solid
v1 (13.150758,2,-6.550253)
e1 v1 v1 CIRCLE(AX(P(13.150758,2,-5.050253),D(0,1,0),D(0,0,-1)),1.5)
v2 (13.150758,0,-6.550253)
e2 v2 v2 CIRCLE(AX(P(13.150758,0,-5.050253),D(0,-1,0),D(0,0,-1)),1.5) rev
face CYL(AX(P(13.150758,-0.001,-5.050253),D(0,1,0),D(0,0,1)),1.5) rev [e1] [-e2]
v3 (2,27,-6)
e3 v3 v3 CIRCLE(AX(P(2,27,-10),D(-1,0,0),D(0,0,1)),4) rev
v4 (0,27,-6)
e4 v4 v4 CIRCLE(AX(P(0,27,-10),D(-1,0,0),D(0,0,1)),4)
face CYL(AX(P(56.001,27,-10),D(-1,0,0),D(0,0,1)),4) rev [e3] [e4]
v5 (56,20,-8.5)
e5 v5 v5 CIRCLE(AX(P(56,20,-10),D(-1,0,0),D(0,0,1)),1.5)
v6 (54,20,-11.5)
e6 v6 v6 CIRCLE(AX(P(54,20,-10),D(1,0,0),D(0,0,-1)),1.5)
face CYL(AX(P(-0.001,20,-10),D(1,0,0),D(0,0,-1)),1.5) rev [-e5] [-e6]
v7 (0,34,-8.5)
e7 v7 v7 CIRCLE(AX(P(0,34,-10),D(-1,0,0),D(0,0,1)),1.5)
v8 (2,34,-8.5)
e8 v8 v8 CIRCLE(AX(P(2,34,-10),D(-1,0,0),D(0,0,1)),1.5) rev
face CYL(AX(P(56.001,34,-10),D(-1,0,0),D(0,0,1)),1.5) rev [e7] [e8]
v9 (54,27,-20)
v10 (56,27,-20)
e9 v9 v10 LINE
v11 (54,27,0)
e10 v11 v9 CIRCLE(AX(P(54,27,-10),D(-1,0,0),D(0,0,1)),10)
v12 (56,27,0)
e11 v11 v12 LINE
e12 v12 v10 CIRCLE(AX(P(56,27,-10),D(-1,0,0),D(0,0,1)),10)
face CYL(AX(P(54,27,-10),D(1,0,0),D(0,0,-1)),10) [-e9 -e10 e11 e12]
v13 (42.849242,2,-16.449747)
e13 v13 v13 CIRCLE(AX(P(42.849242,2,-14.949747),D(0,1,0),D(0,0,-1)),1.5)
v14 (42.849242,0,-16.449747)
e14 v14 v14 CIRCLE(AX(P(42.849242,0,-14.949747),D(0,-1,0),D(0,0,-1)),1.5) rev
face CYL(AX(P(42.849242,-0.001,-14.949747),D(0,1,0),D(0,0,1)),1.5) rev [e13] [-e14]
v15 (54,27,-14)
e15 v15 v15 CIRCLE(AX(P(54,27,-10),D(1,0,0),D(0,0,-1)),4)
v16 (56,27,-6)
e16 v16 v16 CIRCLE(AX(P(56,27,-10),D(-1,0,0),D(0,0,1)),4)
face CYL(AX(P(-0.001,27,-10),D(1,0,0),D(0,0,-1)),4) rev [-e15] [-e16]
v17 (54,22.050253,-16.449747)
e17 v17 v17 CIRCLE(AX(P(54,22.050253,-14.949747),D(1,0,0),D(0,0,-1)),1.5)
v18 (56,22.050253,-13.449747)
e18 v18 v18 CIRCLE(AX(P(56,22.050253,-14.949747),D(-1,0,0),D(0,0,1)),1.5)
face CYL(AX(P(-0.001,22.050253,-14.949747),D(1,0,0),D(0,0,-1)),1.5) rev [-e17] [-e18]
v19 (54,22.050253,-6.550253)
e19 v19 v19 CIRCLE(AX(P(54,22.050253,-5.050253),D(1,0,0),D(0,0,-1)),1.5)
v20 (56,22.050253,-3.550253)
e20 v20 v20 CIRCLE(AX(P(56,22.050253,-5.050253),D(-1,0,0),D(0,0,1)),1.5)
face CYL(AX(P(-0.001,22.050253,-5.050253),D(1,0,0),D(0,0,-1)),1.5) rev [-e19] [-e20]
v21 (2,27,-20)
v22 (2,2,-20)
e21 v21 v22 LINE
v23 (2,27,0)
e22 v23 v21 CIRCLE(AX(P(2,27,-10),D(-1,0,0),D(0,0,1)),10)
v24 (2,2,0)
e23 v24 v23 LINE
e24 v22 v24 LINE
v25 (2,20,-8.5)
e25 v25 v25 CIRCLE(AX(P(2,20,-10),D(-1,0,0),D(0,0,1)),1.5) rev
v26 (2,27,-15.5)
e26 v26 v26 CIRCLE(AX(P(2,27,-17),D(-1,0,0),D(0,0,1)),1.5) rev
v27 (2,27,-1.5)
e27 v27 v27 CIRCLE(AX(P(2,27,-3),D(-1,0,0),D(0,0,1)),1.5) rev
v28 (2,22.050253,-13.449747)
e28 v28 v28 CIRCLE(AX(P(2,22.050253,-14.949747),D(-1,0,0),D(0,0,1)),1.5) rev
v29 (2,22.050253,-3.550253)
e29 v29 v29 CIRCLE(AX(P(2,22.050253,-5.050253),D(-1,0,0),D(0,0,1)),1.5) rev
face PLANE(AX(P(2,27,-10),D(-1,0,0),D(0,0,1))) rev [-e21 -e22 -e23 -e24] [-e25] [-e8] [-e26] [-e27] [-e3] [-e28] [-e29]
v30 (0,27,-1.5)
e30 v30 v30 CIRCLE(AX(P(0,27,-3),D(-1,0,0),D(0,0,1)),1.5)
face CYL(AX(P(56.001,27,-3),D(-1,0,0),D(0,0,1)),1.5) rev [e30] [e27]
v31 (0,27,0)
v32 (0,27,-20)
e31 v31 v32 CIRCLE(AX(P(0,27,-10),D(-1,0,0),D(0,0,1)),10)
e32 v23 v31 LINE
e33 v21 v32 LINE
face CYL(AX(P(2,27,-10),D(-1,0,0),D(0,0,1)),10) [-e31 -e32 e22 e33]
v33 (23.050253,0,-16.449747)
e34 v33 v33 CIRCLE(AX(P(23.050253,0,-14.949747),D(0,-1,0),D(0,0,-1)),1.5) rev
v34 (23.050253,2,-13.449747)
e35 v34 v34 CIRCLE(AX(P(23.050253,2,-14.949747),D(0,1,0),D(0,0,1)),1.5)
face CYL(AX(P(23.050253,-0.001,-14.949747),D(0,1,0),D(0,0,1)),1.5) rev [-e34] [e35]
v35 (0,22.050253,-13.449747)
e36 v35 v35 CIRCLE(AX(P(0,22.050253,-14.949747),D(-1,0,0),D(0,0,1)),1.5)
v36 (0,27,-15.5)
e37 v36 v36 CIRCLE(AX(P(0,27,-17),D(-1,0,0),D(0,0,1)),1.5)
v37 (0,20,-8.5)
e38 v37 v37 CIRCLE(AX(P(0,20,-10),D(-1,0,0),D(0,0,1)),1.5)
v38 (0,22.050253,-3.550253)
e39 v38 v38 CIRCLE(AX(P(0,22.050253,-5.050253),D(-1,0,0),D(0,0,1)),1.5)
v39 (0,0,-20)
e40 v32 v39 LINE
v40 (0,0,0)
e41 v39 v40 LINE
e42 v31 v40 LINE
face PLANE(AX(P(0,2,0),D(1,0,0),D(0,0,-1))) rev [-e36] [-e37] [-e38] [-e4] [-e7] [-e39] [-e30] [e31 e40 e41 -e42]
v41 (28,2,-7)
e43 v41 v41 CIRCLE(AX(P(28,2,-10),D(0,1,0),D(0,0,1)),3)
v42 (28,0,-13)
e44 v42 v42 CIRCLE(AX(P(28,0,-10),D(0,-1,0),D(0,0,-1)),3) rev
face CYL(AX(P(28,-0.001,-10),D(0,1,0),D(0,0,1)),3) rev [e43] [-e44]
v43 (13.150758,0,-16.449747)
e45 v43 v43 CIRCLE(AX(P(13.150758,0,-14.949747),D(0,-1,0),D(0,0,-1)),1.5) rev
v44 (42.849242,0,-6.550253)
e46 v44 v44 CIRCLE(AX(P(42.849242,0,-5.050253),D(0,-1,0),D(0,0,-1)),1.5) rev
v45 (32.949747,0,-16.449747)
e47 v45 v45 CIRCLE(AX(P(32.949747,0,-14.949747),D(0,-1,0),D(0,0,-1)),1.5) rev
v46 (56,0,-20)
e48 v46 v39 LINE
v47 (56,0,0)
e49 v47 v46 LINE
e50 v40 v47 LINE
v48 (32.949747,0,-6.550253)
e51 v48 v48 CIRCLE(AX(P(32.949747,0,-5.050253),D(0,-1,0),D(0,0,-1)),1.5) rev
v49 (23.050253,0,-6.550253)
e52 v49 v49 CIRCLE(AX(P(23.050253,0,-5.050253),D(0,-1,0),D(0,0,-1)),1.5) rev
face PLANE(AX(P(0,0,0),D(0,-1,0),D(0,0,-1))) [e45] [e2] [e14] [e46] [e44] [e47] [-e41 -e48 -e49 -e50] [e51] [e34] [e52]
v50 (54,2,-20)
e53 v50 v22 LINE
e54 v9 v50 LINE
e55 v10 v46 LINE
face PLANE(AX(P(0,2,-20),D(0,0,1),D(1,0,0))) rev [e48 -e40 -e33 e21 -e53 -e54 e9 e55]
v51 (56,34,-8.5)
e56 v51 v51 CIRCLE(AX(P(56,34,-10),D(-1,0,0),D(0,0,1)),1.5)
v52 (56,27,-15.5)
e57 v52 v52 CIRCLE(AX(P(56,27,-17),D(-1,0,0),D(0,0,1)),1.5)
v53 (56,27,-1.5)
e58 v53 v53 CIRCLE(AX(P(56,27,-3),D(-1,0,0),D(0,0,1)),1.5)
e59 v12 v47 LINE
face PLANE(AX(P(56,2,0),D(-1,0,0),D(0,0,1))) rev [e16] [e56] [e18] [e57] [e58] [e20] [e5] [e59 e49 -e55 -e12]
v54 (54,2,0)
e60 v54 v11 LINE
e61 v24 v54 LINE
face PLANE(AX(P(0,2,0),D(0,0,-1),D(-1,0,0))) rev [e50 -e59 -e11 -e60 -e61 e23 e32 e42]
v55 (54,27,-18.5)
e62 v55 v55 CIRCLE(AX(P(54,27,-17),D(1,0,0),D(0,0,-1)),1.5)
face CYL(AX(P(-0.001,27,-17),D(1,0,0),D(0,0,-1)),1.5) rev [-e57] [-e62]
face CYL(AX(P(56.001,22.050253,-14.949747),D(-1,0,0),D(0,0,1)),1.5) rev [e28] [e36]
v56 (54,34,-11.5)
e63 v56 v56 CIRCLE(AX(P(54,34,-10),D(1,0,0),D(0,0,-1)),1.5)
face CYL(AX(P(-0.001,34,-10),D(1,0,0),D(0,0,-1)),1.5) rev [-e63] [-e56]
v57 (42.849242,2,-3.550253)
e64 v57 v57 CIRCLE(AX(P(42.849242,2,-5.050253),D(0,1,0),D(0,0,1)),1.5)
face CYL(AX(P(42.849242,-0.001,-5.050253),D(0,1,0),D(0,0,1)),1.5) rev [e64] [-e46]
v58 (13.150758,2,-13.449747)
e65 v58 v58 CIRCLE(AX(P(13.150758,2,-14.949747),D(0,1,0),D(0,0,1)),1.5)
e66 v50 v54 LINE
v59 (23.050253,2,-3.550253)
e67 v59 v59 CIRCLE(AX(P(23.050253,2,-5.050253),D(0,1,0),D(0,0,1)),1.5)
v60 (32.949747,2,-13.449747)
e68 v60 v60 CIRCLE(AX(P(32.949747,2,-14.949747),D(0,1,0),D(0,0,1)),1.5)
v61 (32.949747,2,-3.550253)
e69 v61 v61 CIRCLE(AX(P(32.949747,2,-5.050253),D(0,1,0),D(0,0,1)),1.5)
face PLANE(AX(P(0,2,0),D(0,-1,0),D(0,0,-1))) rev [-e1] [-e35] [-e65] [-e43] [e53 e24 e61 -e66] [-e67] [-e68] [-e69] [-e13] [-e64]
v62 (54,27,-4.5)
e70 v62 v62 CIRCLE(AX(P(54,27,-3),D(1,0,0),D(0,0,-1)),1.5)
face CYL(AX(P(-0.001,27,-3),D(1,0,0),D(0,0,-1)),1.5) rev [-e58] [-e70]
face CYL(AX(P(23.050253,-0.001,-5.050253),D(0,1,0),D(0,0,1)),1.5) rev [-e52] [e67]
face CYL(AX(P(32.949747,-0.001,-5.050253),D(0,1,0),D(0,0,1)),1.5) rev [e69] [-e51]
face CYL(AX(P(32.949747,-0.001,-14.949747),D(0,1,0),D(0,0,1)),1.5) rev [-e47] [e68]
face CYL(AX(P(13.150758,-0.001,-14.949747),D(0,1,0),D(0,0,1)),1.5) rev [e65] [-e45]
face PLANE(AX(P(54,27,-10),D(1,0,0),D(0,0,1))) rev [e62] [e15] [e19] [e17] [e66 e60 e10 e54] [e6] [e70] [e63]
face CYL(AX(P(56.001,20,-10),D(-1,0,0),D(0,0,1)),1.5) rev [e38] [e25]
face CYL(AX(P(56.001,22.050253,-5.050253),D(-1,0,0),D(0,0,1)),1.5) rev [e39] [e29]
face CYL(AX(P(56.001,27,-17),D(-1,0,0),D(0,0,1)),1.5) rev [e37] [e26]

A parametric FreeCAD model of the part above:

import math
import FreeCAD as App
import Part
import Sketcher


def add_polygon(sketch, points):
    """Adds a closed chain of lines whose ends are joined by coincident constraints."""
    first, n = sketch.GeometryCount, len(points)
    for a, b in zip(points, points[1:] + points[:1]):
        sketch.addGeometry(Part.LineSegment(App.Vector(*a, 0), App.Vector(*b, 0)), False)
    for i in range(n):
        sketch.addConstraint(Sketcher.Constraint("Coincident", first + i, 2, first + (i + 1) % n, 1))

doc = App.newDocument("Part")
body = doc.addObject("PartDesign::Body", "Body")

# Sketch on XZ plane
sketch1 = doc.addObject("Sketcher::SketchObject", "Sketch")
body.addObject(sketch1)
sketch1.AttachmentSupport = (doc.XZ_Plane, [""])
sketch1.MapMode = "FlatFace"
add_polygon(sketch1, [(0, -20), (0, 0), (56, 0), (56, -20)])  # lines 0-3
sketch1.addConstraint(Sketcher.Constraint("Vertical", 0))
sketch1.addConstraint(Sketcher.Constraint("Horizontal", 1))
sketch1.addConstraint(Sketcher.Constraint("Vertical", 2))
sketch1.addConstraint(Sketcher.Constraint("Horizontal", 3))
sketch1.addConstraint(Sketcher.Constraint("Coincident", 0, 2, -1, 1))
sketch1.addConstraint(Sketcher.Constraint("DistanceX", 1, 1, 1, 2, 56.0))
sketch1.addConstraint(Sketcher.Constraint("DistanceY", 0, 1, 0, 2, 20.0))
pad1 = doc.addObject("PartDesign::Pad", "Pad")
body.addObject(pad1)
pad1.Profile = sketch1
pad1.Length = 2
pad1.Reversed = True

# Sketch on XZ plane
sketch2 = doc.addObject("Sketcher::SketchObject", "Sketch001")
body.addObject(sketch2)
sketch2.AttachmentSupport = (doc.XZ_Plane, [""])
sketch2.MapMode = "FlatFace"
sketch2.AttachmentOffset = App.Placement(App.Vector(0, 0, -2), App.Rotation())
sketch2.addGeometry(Part.Circle(App.Vector(28, -10, 0), App.Vector(0, 0, 1), 3), False)
sketch2.addConstraint(Sketcher.Constraint("Diameter", 0, 6.0))
sketch2.addConstraint(Sketcher.Constraint("DistanceX", -1, 1, 0, 3, 28.0))
sketch2.addConstraint(Sketcher.Constraint("DistanceY", 0, 3, -1, 1, 10.0))
pocket1 = doc.addObject("PartDesign::Pocket", "Pocket")
body.addObject(pocket1)
pocket1.Profile = sketch2
pocket1.Type = "UpToFirst"
pocket1.Reversed = True

# Sketch on XZ plane
sketch3 = doc.addObject("Sketcher::SketchObject", "Sketch002")
body.addObject(sketch3)
sketch3.AttachmentSupport = (doc.XZ_Plane, [""])
sketch3.MapMode = "FlatFace"
sketch3.AttachmentOffset = App.Placement(App.Vector(0, 0, -2), App.Rotation())
sketch3.addGeometry(Part.Circle(App.Vector(32.9, -5.1, 0), App.Vector(0, 0, 1), 1.5), False)
sketch3.addConstraint(Sketcher.Constraint("Diameter", 0, 3.0))
sketch3.addConstraint(Sketcher.Constraint("DistanceX", -1, 1, 0, 3, 32.949747))
sketch3.addConstraint(Sketcher.Constraint("DistanceY", 0, 3, -1, 1, 5.050253))
pocket2 = doc.addObject("PartDesign::Pocket", "Pocket001")
body.addObject(pocket2)
pocket2.Profile = sketch3
pocket2.Type = "UpToFirst"
pocket2.Reversed = True

# Sketch on XZ plane
sketch4 = doc.addObject("Sketcher::SketchObject", "Sketch003")
body.addObject(sketch4)
sketch4.AttachmentSupport = (doc.XZ_Plane, [""])
sketch4.MapMode = "FlatFace"
sketch4.AttachmentOffset = App.Placement(App.Vector(0, 0, -2), App.Rotation())
sketch4.addGeometry(Part.Circle(App.Vector(23.1, -5.1, 0), App.Vector(0, 0, 1), 1.5), False)
sketch4.addConstraint(Sketcher.Constraint("Diameter", 0, 3.0))
sketch4.addConstraint(Sketcher.Constraint("DistanceX", -1, 1, 0, 3, 23.050253))
sketch4.addConstraint(Sketcher.Constraint("DistanceY", 0, 3, -1, 1, 5.050253))
pocket3 = doc.addObject("PartDesign::Pocket", "Pocket002")
body.addObject(pocket3)
pocket3.Profile = sketch4
pocket3.Type = "UpToFirst"
pocket3.Reversed = True

# Sketch on XZ plane
sketch5 = doc.addObject("Sketcher::SketchObject", "Sketch004")
body.addObject(sketch5)
sketch5.AttachmentSupport = (doc.XZ_Plane, [""])
sketch5.MapMode = "FlatFace"
sketch5.AttachmentOffset = App.Placement(App.Vector(0, 0, -2), App.Rotation())
sketch5.addGeometry(Part.Circle(App.Vector(23.1, -14.9, 0), App.Vector(0, 0, 1), 1.5), False)
sketch5.addConstraint(Sketcher.Constraint("Diameter", 0, 3.0))
sketch5.addConstraint(Sketcher.Constraint("DistanceX", -1, 1, 0, 3, 23.050253))
sketch5.addConstraint(Sketcher.Constraint("DistanceY", 0, 3, -1, 1, 14.949747))
pocket4 = doc.addObject("PartDesign::Pocket", "Pocket003")
body.addObject(pocket4)
pocket4.Profile = sketch5
pocket4.Type = "UpToFirst"
pocket4.Reversed = True

# Sketch on XZ plane
sketch6 = doc.addObject("Sketcher::SketchObject", "Sketch005")
body.addObject(sketch6)
sketch6.AttachmentSupport = (doc.XZ_Plane, [""])
sketch6.MapMode = "FlatFace"
sketch6.AttachmentOffset = App.Placement(App.Vector(0, 0, -2), App.Rotation())
sketch6.addGeometry(Part.Circle(App.Vector(32.9, -14.9, 0), App.Vector(0, 0, 1), 1.5), False)
sketch6.addConstraint(Sketcher.Constraint("Diameter", 0, 3.0))
sketch6.addConstraint(Sketcher.Constraint("DistanceX", -1, 1, 0, 3, 32.949747))
sketch6.addConstraint(Sketcher.Constraint("DistanceY", 0, 3, -1, 1, 14.949747))
pocket5 = doc.addObject("PartDesign::Pocket", "Pocket004")
body.addObject(pocket5)
pocket5.Profile = sketch6
pocket5.Type = "UpToFirst"
pocket5.Reversed = True

# Sketch on XZ plane
sketch7 = doc.addObject("Sketcher::SketchObject", "Sketch006")
body.addObject(sketch7)
sketch7.AttachmentSupport = (doc.XZ_Plane, [""])
sketch7.MapMode = "FlatFace"
sketch7.AttachmentOffset = App.Placement(App.Vector(0, 0, -2), App.Rotation())
sketch7.addGeometry(Part.Circle(App.Vector(13.2, -14.9, 0), App.Vector(0, 0, 1), 1.5), False)
sketch7.addConstraint(Sketcher.Constraint("Diameter", 0, 3.0))
sketch7.addConstraint(Sketcher.Constraint("DistanceX", -1, 1, 0, 3, 13.150758))
sketch7.addConstraint(Sketcher.Constraint("DistanceY", 0, 3, -1, 1, 14.949747))
pocket6 = doc.addObject("PartDesign::Pocket", "Pocket005")
body.addObject(pocket6)
pocket6.Profile = sketch7
pocket6.Type = "UpToFirst"
pocket6.Reversed = True

# Sketch on XZ plane
sketch8 = doc.addObject("Sketcher::SketchObject", "Sketch007")
body.addObject(sketch8)
sketch8.AttachmentSupport = (doc.XZ_Plane, [""])
sketch8.MapMode = "FlatFace"
sketch8.AttachmentOffset = App.Placement(App.Vector(0, 0, -2), App.Rotation())
sketch8.addGeometry(Part.Circle(App.Vector(13.2, -5.1, 0), App.Vector(0, 0, 1), 1.5), False)
sketch8.addConstraint(Sketcher.Constraint("Diameter", 0, 3.0))
sketch8.addConstraint(Sketcher.Constraint("DistanceX", -1, 1, 0, 3, 13.150758))
sketch8.addConstraint(Sketcher.Constraint("DistanceY", 0, 3, -1, 1, 5.050253))
pocket7 = doc.addObject("PartDesign::Pocket", "Pocket006")
body.addObject(pocket7)
pocket7.Profile = sketch8
pocket7.Type = "UpToFirst"
pocket7.Reversed = True

# Sketch on XZ plane
sketch9 = doc.addObject("Sketcher::SketchObject", "Sketch008")
body.addObject(sketch9)
sketch9.AttachmentSupport = (doc.XZ_Plane, [""])
sketch9.MapMode = "FlatFace"
sketch9.AttachmentOffset = App.Placement(App.Vector(0, 0, -2), App.Rotation())
sketch9.addGeometry(Part.Circle(App.Vector(42.8, -5.1, 0), App.Vector(0, 0, 1), 1.5), False)
sketch9.addConstraint(Sketcher.Constraint("Diameter", 0, 3.0))
sketch9.addConstraint(Sketcher.Constraint("DistanceX", -1, 1, 0, 3, 42.849242))
sketch9.addConstraint(Sketcher.Constraint("DistanceY", 0, 3, -1, 1, 5.050253))
pocket8 = doc.addObject("PartDesign::Pocket", "Pocket007")
body.addObject(pocket8)
pocket8.Profile = sketch9
pocket8.Type = "UpToFirst"
pocket8.Reversed = True

# Sketch on XZ plane
sketch10 = doc.addObject("Sketcher::SketchObject", "Sketch009")
body.addObject(sketch10)
sketch10.AttachmentSupport = (doc.XZ_Plane, [""])
sketch10.MapMode = "FlatFace"
sketch10.AttachmentOffset = App.Placement(App.Vector(0, 0, -2), App.Rotation())
sketch10.addGeometry(Part.Circle(App.Vector(42.8, -14.9, 0), App.Vector(0, 0, 1), 1.5), False)
sketch10.addConstraint(Sketcher.Constraint("Diameter", 0, 3.0))
sketch10.addConstraint(Sketcher.Constraint("DistanceX", -1, 1, 0, 3, 42.849242))
sketch10.addConstraint(Sketcher.Constraint("DistanceY", 0, 3, -1, 1, 14.949747))
pocket9 = doc.addObject("PartDesign::Pocket", "Pocket008")
body.addObject(pocket9)
pocket9.Profile = sketch10
pocket9.Type = "UpToFirst"
pocket9.Reversed = True

# Sketch on YZ plane
sketch11 = doc.addObject("Sketcher::SketchObject", "Sketch010")
body.addObject(sketch11)
sketch11.AttachmentSupport = (doc.YZ_Plane, [""])
sketch11.MapMode = "FlatFace"
sketch11.addGeometry(Part.LineSegment(App.Vector(2, -20, 0), App.Vector(2, 0, 0)), False)
sketch11.addGeometry(Part.LineSegment(App.Vector(2, 0, 0), App.Vector(27, 0, 0)), False)
sketch11.addGeometry(Part.ArcOfCircle(Part.Circle(App.Vector(27, -10, 0), App.Vector(0, 0, 1), 10), math.radians(-90), math.radians(90)), False)
sketch11.addGeometry(Part.LineSegment(App.Vector(27, -20, 0), App.Vector(2, -20, 0)), False)
sketch11.addConstraint(Sketcher.Constraint("Coincident", 0, 2, 1, 1))
sketch11.addConstraint(Sketcher.Constraint("Tangent", 1, 2, 2, 2))
sketch11.addConstraint(Sketcher.Constraint("Tangent", 2, 1, 3, 1))
sketch11.addConstraint(Sketcher.Constraint("Coincident", 3, 2, 0, 1))
sketch11.addConstraint(Sketcher.Constraint("Vertical", 0))
sketch11.addConstraint(Sketcher.Constraint("Horizontal", 1))
sketch11.addConstraint(Sketcher.Constraint("Horizontal", 3))
sketch11.addConstraint(Sketcher.Constraint("PointOnObject", 0, 2, -1))
sketch11.addConstraint(Sketcher.Constraint("Radius", 2, 10.0))
sketch11.addConstraint(Sketcher.Constraint("DistanceX", 1, 1, 1, 2, 25.0))
sketch11.addConstraint(Sketcher.Constraint("DistanceX", -1, 1, 2, 3, 27.0))
pad2 = doc.addObject("PartDesign::Pad", "Pad001")
body.addObject(pad2)
pad2.Profile = sketch11
pad2.Length = 2

# Sketch on YZ plane
sketch12 = doc.addObject("Sketcher::SketchObject", "Sketch011")
body.addObject(sketch12)
sketch12.AttachmentSupport = (doc.YZ_Plane, [""])
sketch12.MapMode = "FlatFace"
sketch12.addGeometry(Part.Circle(App.Vector(27, -10, 0), App.Vector(0, 0, 1), 4), False)
sketch12.addGeometry(Part.Circle(App.Vector(34, -10, 0), App.Vector(0, 0, 1), 1.5), False)
sketch12.addGeometry(Part.Circle(App.Vector(27, -3, 0), App.Vector(0, 0, 1), 1.5), False)
sketch12.addGeometry(Part.Circle(App.Vector(22.1, -5.1, 0), App.Vector(0, 0, 1), 1.5), False)
sketch12.addGeometry(Part.Circle(App.Vector(20, -10, 0), App.Vector(0, 0, 1), 1.5), False)
sketch12.addGeometry(Part.Circle(App.Vector(22.1, -14.9, 0), App.Vector(0, 0, 1), 1.5), False)
sketch12.addGeometry(Part.Circle(App.Vector(27, -17, 0), App.Vector(0, 0, 1), 1.5), False)
sketch12.addConstraint(Sketcher.Constraint("Equal", 1, 2))
sketch12.addConstraint(Sketcher.Constraint("Equal", 2, 3))
sketch12.addConstraint(Sketcher.Constraint("Equal", 3, 4))
sketch12.addConstraint(Sketcher.Constraint("Equal", 4, 5))
sketch12.addConstraint(Sketcher.Constraint("Equal", 5, 6))
sketch12.addConstraint(Sketcher.Constraint("Horizontal", 0, 3, 1, 3))
sketch12.addConstraint(Sketcher.Constraint("Horizontal", 1, 3, 4, 3))
sketch12.addConstraint(Sketcher.Constraint("Vertical", 0, 3, 2, 3))
sketch12.addConstraint(Sketcher.Constraint("Vertical", 3, 3, 5, 3))
sketch12.addConstraint(Sketcher.Constraint("Vertical", 2, 3, 6, 3))
sketch12.addConstraint(Sketcher.Constraint("Diameter", 0, 8.0))
sketch12.addConstraint(Sketcher.Constraint("Diameter", 1, 3.0))
sketch12.addConstraint(Sketcher.Constraint("DistanceX", -1, 1, 0, 3, 27.0))
sketch12.addConstraint(Sketcher.Constraint("DistanceY", 0, 3, -1, 1, 10.0))
sketch12.addConstraint(Sketcher.Constraint("DistanceX", -1, 1, 1, 3, 34.0))
sketch12.addConstraint(Sketcher.Constraint("DistanceY", 2, 3, -1, 1, 3.0))
sketch12.addConstraint(Sketcher.Constraint("DistanceX", -1, 1, 4, 3, 20.0))
sketch12.addConstraint(Sketcher.Constraint("DistanceY", 6, 3, -1, 1, 17.0))
sketch12.addConstraint(Sketcher.Constraint("DistanceX", -1, 1, 3, 3, 22.050253))
sketch12.addConstraint(Sketcher.Constraint("DistanceY", 3, 3, -1, 1, 5.050253))
sketch12.addConstraint(Sketcher.Constraint("DistanceY", 5, 3, -1, 1, 14.949747))
pocket10 = doc.addObject("PartDesign::Pocket", "Pocket009")
body.addObject(pocket10)
pocket10.Profile = sketch12
pocket10.Length = 2
pocket10.Reversed = True
doc.recompute()

datumplane = doc.addObject("PartDesign::Plane", "DatumPlane")
body.addObject(datumplane)
datumplane.AttachmentSupport = (doc.YZ_Plane, [""])
datumplane.MapMode = "FlatFace"
datumplane.AttachmentOffset = App.Placement(App.Vector(0, 0, 28), App.Rotation())
mirrored = doc.addObject("PartDesign::Mirrored", "Mirrored")
body.addObject(mirrored)
mirrored.Originals = [pad2, pocket10]
mirrored.MirrorPlane = (datumplane, [""])
body.Tip = mirrored

doc.recompute()
